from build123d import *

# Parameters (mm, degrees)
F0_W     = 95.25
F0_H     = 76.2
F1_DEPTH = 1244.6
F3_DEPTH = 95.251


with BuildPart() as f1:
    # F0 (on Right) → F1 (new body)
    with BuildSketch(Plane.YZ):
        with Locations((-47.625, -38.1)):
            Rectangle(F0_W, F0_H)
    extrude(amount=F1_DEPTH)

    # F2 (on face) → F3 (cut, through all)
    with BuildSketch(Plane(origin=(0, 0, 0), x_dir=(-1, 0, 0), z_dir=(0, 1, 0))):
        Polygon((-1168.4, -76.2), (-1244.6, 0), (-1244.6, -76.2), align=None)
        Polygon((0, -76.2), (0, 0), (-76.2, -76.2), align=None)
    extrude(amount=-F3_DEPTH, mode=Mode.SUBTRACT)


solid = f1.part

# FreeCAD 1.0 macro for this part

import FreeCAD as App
import Part
import Sketcher
from FreeCAD import Vector
Q = App.Units.Quantity

doc = App.newDocument("Part")
body = doc.addObject("PartDesign::Body", "Body")

# Sketch on YZ plane
sketch1 = doc.addObject("Sketcher::SketchObject", "Sketch")
body.addObject(sketch1)
sketch1.AttachmentSupport = (doc.YZ_Plane, [""])
sketch1.MapMode = "FlatFace"
sketch1.addGeometry(Part.LineSegment(Vector(-95, 0, 0), Vector(-95, -76, 0)), False)
sketch1.addGeometry(Part.LineSegment(Vector(-95, -76, 0), Vector(0, -76, 0)), False)
sketch1.addGeometry(Part.LineSegment(Vector(0, -76, 0), Vector(0, 0, 0)), False)
sketch1.addGeometry(Part.LineSegment(Vector(0, 0, 0), Vector(-95, 0, 0)), False)
sketch1.addConstraint(Sketcher.Constraint("Coincident", 0, 2, 1, 1))
sketch1.addConstraint(Sketcher.Constraint("Coincident", 1, 2, 2, 1))
sketch1.addConstraint(Sketcher.Constraint("Coincident", 2, 2, 3, 1))
sketch1.addConstraint(Sketcher.Constraint("Coincident", 3, 2, 0, 1))
sketch1.addConstraint(Sketcher.Constraint("Vertical", 0))
sketch1.addConstraint(Sketcher.Constraint("Horizontal", 1))
sketch1.addConstraint(Sketcher.Constraint("Vertical", 2))
sketch1.addConstraint(Sketcher.Constraint("Horizontal", 3))
sketch1.addConstraint(Sketcher.Constraint("Coincident", 2, 2, -1, 1))
sketch1.addConstraint(Sketcher.Constraint("DistanceY", 0, 2, 0, 1, Q("3 in")))
sketch1.addConstraint(Sketcher.Constraint("DistanceX", 1, 1, 1, 2, Q("3.75 in")))
pad1 = doc.addObject("PartDesign::Pad", "Pad")
body.addObject(pad1)
pad1.Profile = sketch1
pad1.Length = Q("49 in")

# Sketch on XZ plane
sketch2 = doc.addObject("Sketcher::SketchObject", "Sketch001")
body.addObject(sketch2)
sketch2.AttachmentSupport = (doc.XZ_Plane, [""])
sketch2.MapMode = "FlatFace"
sketch2.addGeometry(Part.LineSegment(Vector(1168, -76, 0), Vector(1245, 0, 0)), False)
sketch2.addGeometry(Part.LineSegment(Vector(1245, 0, 0), Vector(1245, -76, 0)), False)
sketch2.addGeometry(Part.LineSegment(Vector(1245, -76, 0), Vector(1168, -76, 0)), False)
sketch2.addGeometry(Part.LineSegment(Vector(0, -76, 0), Vector(0, 0, 0)), False)
sketch2.addGeometry(Part.LineSegment(Vector(0, 0, 0), Vector(76, -76, 0)), False)
sketch2.addGeometry(Part.LineSegment(Vector(76, -76, 0), Vector(0, -76, 0)), False)
sketch2.addConstraint(Sketcher.Constraint("Coincident", 0, 2, 1, 1))
sketch2.addConstraint(Sketcher.Constraint("Coincident", 1, 2, 2, 1))
sketch2.addConstraint(Sketcher.Constraint("Coincident", 2, 2, 0, 1))
sketch2.addConstraint(Sketcher.Constraint("Coincident", 3, 2, 4, 1))
sketch2.addConstraint(Sketcher.Constraint("Coincident", 4, 2, 5, 1))
sketch2.addConstraint(Sketcher.Constraint("Coincident", 5, 2, 3, 1))
sketch2.addConstraint(Sketcher.Constraint("Vertical", 1))
sketch2.addConstraint(Sketcher.Constraint("Horizontal", 2))
sketch2.addConstraint(Sketcher.Constraint("Vertical", 3))
sketch2.addConstraint(Sketcher.Constraint("Horizontal", 5))
sketch2.addConstraint(Sketcher.Constraint("Coincident", 3, 2, -1, 1))
sketch2.addConstraint(Sketcher.Constraint("PointOnObject", 0, 2, -1))
sketch2.addConstraint(Sketcher.Constraint("Perpendicular", 0, 4))
sketch2.addConstraint(Sketcher.Constraint("Horizontal", 2, 2, 4, 2))
sketch2.addConstraint(Sketcher.Constraint("Equal", 2, 5))
sketch2.addConstraint(Sketcher.Constraint("DistanceX", 2, 2, 2, 1, Q("3 in")))
sketch2.addConstraint(Sketcher.Constraint("DistanceX", -1, 1, 0, 2, Q("49 in")))
pocket1 = doc.addObject("PartDesign::Pocket", "Pocket")
body.addObject(pocket1)
pocket1.Profile = sketch2
pocket1.Type = "ThroughAll"
pocket1.Reversed = True

doc.recompute()
